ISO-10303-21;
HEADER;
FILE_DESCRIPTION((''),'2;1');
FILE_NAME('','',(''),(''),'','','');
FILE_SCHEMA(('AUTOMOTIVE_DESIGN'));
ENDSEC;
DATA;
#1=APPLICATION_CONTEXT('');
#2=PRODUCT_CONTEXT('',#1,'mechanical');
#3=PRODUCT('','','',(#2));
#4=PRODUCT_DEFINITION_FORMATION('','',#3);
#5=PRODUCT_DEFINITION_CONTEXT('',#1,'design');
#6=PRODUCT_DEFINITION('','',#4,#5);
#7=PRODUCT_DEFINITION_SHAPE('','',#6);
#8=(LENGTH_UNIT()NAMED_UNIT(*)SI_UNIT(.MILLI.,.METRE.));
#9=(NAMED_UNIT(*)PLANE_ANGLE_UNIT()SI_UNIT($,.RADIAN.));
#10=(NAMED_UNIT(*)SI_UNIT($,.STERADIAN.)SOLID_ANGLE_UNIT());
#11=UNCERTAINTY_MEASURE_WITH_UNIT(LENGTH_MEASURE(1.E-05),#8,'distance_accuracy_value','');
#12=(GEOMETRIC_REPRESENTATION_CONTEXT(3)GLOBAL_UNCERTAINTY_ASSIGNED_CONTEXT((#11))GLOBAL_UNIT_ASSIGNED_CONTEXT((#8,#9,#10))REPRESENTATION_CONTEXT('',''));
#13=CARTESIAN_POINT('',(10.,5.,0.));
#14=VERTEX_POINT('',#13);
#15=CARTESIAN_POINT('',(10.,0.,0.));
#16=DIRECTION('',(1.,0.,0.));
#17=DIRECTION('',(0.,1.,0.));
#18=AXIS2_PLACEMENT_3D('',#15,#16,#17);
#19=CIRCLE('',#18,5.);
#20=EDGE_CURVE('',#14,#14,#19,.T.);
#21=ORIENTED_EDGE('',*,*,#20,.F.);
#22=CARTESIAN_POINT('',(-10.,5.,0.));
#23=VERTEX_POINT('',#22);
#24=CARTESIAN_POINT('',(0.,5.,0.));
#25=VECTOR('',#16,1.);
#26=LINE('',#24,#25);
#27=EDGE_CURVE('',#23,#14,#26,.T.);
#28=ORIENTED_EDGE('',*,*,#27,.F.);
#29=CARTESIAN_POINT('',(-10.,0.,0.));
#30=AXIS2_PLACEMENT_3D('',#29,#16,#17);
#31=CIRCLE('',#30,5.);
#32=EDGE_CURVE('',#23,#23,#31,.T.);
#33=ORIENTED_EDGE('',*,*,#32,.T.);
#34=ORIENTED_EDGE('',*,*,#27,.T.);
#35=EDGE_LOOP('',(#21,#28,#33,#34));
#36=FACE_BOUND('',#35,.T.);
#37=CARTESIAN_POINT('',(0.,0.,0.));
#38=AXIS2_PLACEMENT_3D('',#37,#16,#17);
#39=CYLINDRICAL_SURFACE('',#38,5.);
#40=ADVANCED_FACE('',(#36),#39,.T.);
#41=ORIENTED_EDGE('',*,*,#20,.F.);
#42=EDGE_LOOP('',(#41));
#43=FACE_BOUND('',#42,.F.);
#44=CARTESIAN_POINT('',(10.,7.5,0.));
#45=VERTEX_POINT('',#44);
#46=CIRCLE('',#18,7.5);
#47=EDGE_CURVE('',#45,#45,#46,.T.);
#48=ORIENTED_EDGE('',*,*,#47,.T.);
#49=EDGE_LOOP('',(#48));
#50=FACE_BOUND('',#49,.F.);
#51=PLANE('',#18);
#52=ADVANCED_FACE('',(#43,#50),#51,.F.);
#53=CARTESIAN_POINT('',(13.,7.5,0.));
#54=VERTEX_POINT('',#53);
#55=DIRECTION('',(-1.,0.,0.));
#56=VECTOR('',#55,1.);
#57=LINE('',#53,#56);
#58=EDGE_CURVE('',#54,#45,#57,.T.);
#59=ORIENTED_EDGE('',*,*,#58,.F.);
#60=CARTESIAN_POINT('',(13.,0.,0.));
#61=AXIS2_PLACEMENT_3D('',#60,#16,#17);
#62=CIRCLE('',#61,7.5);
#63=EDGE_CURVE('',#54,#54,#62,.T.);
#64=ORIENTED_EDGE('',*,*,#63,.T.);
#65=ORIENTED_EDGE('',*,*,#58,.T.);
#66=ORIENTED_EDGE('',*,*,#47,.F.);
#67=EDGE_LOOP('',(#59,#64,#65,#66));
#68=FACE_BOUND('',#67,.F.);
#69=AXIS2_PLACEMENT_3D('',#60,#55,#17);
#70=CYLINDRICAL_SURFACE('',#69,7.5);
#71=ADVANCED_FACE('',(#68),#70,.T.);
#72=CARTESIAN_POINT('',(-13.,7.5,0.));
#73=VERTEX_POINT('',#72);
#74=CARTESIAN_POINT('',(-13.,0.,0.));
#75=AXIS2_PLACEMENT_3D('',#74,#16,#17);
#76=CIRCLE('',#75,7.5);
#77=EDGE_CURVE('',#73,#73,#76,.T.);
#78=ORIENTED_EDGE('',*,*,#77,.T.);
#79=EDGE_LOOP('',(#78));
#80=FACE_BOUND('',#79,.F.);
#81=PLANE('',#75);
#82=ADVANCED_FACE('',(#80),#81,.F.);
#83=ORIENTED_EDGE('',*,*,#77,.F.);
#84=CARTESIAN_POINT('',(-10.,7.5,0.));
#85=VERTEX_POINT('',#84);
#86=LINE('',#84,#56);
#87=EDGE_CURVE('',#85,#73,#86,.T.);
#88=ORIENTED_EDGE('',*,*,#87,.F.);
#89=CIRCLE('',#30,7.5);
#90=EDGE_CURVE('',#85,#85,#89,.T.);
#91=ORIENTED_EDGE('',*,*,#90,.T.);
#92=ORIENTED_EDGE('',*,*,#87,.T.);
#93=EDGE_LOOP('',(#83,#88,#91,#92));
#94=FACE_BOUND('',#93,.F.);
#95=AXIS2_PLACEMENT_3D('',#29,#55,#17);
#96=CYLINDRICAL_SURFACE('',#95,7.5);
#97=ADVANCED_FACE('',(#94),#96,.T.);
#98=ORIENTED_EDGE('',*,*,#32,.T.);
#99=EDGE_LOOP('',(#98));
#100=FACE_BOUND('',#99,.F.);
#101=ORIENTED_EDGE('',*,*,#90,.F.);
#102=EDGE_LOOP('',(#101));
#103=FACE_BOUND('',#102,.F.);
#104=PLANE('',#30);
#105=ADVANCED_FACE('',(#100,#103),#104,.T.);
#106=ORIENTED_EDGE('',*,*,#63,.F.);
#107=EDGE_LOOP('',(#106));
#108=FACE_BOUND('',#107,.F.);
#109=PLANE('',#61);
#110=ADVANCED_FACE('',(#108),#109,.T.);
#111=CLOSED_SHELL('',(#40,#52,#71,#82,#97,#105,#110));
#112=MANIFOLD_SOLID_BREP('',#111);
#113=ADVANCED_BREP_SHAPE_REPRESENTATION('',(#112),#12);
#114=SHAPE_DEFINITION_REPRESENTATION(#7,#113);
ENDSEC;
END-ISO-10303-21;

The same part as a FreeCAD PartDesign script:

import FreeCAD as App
import Part
import Sketcher
from FreeCAD import Vector
Q = App.Units.Quantity


def add_polygon(sketch, points):
    """Adds a closed chain of lines whose ends are joined by coincident constraints."""
    first, n = sketch.GeometryCount, len(points)
    for a, b in zip(points, points[1:] + points[:1]):
        sketch.addGeometry(Part.LineSegment(App.Vector(*a, 0), App.Vector(*b, 0)), False)
    for i in range(n):
        sketch.addConstraint(Sketcher.Constraint("Coincident", first + i, 2, first + (i + 1) % n, 1))

doc = App.newDocument("Part")
body = doc.addObject("PartDesign::Body", "Body")

# Sketch on XY plane
sketch1 = body.newObject("Sketcher::SketchObject", "Sketch")
sketch1.AttachmentSupport = (doc.getObject("XY_Plane"), [""])
sketch1.MapMode = "FlatFace"
add_polygon(sketch1, [(-10, 5), (-10, 7.5), (-13, 7.5), (-13, 0), (13, 0), (13, 7.5), (10, 7.5), (10, 5)])  # lines 0-7
sketch1.addConstraint([
    Sketcher.Constraint("Vertical", 0),
    Sketcher.Constraint("Horizontal", 1),
    Sketcher.Constraint("Vertical", 2),
    Sketcher.Constraint("Horizontal", 3),
    Sketcher.Constraint("Vertical", 4),
    Sketcher.Constraint("Horizontal", 5),
    Sketcher.Constraint("Vertical", 6),
    Sketcher.Constraint("Horizontal", 7),
    Sketcher.Constraint("Symmetric", 2, 2, 3, 2, -1, 1),
    Sketcher.Constraint("Symmetric", 0, 2, 5, 2, -2),
    Sketcher.Constraint("DistanceX", 1, 2, 1, 1, Q("3 mm")),
    Sketcher.Constraint("DistanceX", 3, 1, 3, 2, Q("26 mm")),
    Sketcher.Constraint("DistanceY", 0, 1, 0, 2, Q("2.5 mm")),
    Sketcher.Constraint("DistanceY", 2, 2, 2, 1, Q("7.5 mm")),
])
revolution = body.newObject("PartDesign::Revolution", "Revolution")
revolution.Profile = sketch1
revolution.ReferenceAxis = (sketch1, ["H_Axis"])
revolution.Angle = 360

doc.recompute()
